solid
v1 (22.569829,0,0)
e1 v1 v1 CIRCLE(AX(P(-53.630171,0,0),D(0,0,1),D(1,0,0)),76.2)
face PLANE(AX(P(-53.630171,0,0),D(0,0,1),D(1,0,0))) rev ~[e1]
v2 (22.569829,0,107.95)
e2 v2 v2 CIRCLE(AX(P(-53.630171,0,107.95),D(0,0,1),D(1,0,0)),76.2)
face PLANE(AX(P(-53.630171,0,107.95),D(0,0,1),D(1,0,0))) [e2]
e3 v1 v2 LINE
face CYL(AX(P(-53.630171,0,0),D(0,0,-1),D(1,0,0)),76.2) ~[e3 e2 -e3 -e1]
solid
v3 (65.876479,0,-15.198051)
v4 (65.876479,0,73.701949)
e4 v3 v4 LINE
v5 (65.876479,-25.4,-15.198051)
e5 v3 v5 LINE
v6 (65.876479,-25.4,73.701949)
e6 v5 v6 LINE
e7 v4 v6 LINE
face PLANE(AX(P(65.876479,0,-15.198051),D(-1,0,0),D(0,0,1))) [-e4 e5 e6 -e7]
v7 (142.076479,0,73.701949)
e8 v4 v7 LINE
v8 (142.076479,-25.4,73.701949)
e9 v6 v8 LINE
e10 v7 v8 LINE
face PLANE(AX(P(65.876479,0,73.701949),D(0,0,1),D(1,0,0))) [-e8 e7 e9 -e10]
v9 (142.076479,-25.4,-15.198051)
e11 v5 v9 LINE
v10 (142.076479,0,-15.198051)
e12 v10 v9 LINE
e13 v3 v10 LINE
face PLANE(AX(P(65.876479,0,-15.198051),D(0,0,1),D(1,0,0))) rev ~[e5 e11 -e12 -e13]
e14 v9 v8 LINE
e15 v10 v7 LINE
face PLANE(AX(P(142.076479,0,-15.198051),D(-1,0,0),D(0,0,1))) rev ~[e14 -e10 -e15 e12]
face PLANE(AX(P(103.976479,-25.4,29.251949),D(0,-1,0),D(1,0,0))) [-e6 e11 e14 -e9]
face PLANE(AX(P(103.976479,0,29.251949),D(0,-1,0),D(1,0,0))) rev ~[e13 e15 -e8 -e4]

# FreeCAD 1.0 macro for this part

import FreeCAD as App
import Part
import Sketcher
from FreeCAD import Vector
Q = App.Units.Quantity

doc = App.newDocument("Part")
body = doc.addObject("PartDesign::Body", "Body")

sketch1 = body.newObject("Sketcher::SketchObject", "Sketch")
sketch1.AttachmentSupport = (doc.getObject("XY_Plane"), [""])
sketch1.MapMode = "FlatFace"
sketch1.addGeometry(Part.Circle(Vector(-23, 9, 0), Vector(0, 0, 1), 39), False)
sketch1.addConstraint(Sketcher.Constraint("Diameter", 0, 77.041166))
sketch1.addConstraint(Sketcher.Constraint("DistanceX", 0, 3, -1, 1, 23.339018))
sketch1.addConstraint(Sketcher.Constraint("DistanceY", -1, 1, 0, 3, 8.759156))
pad1 = body.newObject("PartDesign::Pad", "Pad")
pad1.Profile = sketch1
pad1.Length = Q("4.25 in")
body2 = doc.addObject("PartDesign::Body", "Body001")

sketch2 = body2.newObject("Sketcher::SketchObject", "Sketch001")
sketch2.AttachmentSupport = (doc.getObject("XY_Plane001"), [""])
sketch2.MapMode = "FlatFace"
sketch2.addGeometry(Part.Circle(Vector(-54, 0, 0), Vector(0, 0, 1), 76), False)
sketch2.addConstraint(Sketcher.Constraint("PointOnObject", 0, 3, -1))
sketch2.addConstraint(Sketcher.Constraint("Diameter", 0, Q("6 in")))
sketch2.addConstraint(Sketcher.Constraint("DistanceX", 0, 3, -1, 1, 53.630171))
pad2 = body2.newObject("PartDesign::Pad", "Pad001")
pad2.Profile = sketch2
pad2.Length = Q("4.25 in")
body3 = doc.addObject("PartDesign::Body", "Body002")

sketch3 = body3.newObject("Sketcher::SketchObject", "Sketch002")
sketch3.AttachmentSupport = (doc.getObject("XZ_Plane002"), [""])
sketch3.MapMode = "FlatFace"
sketch3.addGeometry(Part.LineSegment(Vector(66, 74, 0), Vector(66, -15, 0)), False)
sketch3.addGeometry(Part.LineSegment(Vector(66, -15, 0), Vector(142, -15, 0)), False)
sketch3.addGeometry(Part.LineSegment(Vector(142, -15, 0), Vector(142, 74, 0)), False)
sketch3.addGeometry(Part.LineSegment(Vector(142, 74, 0), Vector(66, 74, 0)), False)
sketch3.addConstraint(Sketcher.Constraint("Coincident", 0, 2, 1, 1))
sketch3.addConstraint(Sketcher.Constraint("Coincident", 1, 2, 2, 1))
sketch3.addConstraint(Sketcher.Constraint("Coincident", 2, 2, 3, 1))
sketch3.addConstraint(Sketcher.Constraint("Coincident", 3, 2, 0, 1))
sketch3.addConstraint(Sketcher.Constraint("Vertical", 0))
sketch3.addConstraint(Sketcher.Constraint("Horizontal", 1))
sketch3.addConstraint(Sketcher.Constraint("Vertical", 2))
sketch3.addConstraint(Sketcher.Constraint("Horizontal", 3))
sketch3.addConstraint(Sketcher.Constraint("DistanceX", 1, 1, 1, 2, Q("3 in")))
sketch3.addConstraint(Sketcher.Constraint("DistanceY", 0, 2, 0, 1, Q("3.5 in")))
sketch3.addConstraint(Sketcher.Constraint("DistanceX", -1, 1, 0, 2, 65.876479))
sketch3.addConstraint(Sketcher.Constraint("DistanceY", 0, 2, -1, 1, 15.198051))
pad3 = body3.newObject("PartDesign::Pad", "Pad002")
pad3.Profile = sketch3
pad3.Length = Q("1 in")
body.Visibility = False

doc.recompute()
